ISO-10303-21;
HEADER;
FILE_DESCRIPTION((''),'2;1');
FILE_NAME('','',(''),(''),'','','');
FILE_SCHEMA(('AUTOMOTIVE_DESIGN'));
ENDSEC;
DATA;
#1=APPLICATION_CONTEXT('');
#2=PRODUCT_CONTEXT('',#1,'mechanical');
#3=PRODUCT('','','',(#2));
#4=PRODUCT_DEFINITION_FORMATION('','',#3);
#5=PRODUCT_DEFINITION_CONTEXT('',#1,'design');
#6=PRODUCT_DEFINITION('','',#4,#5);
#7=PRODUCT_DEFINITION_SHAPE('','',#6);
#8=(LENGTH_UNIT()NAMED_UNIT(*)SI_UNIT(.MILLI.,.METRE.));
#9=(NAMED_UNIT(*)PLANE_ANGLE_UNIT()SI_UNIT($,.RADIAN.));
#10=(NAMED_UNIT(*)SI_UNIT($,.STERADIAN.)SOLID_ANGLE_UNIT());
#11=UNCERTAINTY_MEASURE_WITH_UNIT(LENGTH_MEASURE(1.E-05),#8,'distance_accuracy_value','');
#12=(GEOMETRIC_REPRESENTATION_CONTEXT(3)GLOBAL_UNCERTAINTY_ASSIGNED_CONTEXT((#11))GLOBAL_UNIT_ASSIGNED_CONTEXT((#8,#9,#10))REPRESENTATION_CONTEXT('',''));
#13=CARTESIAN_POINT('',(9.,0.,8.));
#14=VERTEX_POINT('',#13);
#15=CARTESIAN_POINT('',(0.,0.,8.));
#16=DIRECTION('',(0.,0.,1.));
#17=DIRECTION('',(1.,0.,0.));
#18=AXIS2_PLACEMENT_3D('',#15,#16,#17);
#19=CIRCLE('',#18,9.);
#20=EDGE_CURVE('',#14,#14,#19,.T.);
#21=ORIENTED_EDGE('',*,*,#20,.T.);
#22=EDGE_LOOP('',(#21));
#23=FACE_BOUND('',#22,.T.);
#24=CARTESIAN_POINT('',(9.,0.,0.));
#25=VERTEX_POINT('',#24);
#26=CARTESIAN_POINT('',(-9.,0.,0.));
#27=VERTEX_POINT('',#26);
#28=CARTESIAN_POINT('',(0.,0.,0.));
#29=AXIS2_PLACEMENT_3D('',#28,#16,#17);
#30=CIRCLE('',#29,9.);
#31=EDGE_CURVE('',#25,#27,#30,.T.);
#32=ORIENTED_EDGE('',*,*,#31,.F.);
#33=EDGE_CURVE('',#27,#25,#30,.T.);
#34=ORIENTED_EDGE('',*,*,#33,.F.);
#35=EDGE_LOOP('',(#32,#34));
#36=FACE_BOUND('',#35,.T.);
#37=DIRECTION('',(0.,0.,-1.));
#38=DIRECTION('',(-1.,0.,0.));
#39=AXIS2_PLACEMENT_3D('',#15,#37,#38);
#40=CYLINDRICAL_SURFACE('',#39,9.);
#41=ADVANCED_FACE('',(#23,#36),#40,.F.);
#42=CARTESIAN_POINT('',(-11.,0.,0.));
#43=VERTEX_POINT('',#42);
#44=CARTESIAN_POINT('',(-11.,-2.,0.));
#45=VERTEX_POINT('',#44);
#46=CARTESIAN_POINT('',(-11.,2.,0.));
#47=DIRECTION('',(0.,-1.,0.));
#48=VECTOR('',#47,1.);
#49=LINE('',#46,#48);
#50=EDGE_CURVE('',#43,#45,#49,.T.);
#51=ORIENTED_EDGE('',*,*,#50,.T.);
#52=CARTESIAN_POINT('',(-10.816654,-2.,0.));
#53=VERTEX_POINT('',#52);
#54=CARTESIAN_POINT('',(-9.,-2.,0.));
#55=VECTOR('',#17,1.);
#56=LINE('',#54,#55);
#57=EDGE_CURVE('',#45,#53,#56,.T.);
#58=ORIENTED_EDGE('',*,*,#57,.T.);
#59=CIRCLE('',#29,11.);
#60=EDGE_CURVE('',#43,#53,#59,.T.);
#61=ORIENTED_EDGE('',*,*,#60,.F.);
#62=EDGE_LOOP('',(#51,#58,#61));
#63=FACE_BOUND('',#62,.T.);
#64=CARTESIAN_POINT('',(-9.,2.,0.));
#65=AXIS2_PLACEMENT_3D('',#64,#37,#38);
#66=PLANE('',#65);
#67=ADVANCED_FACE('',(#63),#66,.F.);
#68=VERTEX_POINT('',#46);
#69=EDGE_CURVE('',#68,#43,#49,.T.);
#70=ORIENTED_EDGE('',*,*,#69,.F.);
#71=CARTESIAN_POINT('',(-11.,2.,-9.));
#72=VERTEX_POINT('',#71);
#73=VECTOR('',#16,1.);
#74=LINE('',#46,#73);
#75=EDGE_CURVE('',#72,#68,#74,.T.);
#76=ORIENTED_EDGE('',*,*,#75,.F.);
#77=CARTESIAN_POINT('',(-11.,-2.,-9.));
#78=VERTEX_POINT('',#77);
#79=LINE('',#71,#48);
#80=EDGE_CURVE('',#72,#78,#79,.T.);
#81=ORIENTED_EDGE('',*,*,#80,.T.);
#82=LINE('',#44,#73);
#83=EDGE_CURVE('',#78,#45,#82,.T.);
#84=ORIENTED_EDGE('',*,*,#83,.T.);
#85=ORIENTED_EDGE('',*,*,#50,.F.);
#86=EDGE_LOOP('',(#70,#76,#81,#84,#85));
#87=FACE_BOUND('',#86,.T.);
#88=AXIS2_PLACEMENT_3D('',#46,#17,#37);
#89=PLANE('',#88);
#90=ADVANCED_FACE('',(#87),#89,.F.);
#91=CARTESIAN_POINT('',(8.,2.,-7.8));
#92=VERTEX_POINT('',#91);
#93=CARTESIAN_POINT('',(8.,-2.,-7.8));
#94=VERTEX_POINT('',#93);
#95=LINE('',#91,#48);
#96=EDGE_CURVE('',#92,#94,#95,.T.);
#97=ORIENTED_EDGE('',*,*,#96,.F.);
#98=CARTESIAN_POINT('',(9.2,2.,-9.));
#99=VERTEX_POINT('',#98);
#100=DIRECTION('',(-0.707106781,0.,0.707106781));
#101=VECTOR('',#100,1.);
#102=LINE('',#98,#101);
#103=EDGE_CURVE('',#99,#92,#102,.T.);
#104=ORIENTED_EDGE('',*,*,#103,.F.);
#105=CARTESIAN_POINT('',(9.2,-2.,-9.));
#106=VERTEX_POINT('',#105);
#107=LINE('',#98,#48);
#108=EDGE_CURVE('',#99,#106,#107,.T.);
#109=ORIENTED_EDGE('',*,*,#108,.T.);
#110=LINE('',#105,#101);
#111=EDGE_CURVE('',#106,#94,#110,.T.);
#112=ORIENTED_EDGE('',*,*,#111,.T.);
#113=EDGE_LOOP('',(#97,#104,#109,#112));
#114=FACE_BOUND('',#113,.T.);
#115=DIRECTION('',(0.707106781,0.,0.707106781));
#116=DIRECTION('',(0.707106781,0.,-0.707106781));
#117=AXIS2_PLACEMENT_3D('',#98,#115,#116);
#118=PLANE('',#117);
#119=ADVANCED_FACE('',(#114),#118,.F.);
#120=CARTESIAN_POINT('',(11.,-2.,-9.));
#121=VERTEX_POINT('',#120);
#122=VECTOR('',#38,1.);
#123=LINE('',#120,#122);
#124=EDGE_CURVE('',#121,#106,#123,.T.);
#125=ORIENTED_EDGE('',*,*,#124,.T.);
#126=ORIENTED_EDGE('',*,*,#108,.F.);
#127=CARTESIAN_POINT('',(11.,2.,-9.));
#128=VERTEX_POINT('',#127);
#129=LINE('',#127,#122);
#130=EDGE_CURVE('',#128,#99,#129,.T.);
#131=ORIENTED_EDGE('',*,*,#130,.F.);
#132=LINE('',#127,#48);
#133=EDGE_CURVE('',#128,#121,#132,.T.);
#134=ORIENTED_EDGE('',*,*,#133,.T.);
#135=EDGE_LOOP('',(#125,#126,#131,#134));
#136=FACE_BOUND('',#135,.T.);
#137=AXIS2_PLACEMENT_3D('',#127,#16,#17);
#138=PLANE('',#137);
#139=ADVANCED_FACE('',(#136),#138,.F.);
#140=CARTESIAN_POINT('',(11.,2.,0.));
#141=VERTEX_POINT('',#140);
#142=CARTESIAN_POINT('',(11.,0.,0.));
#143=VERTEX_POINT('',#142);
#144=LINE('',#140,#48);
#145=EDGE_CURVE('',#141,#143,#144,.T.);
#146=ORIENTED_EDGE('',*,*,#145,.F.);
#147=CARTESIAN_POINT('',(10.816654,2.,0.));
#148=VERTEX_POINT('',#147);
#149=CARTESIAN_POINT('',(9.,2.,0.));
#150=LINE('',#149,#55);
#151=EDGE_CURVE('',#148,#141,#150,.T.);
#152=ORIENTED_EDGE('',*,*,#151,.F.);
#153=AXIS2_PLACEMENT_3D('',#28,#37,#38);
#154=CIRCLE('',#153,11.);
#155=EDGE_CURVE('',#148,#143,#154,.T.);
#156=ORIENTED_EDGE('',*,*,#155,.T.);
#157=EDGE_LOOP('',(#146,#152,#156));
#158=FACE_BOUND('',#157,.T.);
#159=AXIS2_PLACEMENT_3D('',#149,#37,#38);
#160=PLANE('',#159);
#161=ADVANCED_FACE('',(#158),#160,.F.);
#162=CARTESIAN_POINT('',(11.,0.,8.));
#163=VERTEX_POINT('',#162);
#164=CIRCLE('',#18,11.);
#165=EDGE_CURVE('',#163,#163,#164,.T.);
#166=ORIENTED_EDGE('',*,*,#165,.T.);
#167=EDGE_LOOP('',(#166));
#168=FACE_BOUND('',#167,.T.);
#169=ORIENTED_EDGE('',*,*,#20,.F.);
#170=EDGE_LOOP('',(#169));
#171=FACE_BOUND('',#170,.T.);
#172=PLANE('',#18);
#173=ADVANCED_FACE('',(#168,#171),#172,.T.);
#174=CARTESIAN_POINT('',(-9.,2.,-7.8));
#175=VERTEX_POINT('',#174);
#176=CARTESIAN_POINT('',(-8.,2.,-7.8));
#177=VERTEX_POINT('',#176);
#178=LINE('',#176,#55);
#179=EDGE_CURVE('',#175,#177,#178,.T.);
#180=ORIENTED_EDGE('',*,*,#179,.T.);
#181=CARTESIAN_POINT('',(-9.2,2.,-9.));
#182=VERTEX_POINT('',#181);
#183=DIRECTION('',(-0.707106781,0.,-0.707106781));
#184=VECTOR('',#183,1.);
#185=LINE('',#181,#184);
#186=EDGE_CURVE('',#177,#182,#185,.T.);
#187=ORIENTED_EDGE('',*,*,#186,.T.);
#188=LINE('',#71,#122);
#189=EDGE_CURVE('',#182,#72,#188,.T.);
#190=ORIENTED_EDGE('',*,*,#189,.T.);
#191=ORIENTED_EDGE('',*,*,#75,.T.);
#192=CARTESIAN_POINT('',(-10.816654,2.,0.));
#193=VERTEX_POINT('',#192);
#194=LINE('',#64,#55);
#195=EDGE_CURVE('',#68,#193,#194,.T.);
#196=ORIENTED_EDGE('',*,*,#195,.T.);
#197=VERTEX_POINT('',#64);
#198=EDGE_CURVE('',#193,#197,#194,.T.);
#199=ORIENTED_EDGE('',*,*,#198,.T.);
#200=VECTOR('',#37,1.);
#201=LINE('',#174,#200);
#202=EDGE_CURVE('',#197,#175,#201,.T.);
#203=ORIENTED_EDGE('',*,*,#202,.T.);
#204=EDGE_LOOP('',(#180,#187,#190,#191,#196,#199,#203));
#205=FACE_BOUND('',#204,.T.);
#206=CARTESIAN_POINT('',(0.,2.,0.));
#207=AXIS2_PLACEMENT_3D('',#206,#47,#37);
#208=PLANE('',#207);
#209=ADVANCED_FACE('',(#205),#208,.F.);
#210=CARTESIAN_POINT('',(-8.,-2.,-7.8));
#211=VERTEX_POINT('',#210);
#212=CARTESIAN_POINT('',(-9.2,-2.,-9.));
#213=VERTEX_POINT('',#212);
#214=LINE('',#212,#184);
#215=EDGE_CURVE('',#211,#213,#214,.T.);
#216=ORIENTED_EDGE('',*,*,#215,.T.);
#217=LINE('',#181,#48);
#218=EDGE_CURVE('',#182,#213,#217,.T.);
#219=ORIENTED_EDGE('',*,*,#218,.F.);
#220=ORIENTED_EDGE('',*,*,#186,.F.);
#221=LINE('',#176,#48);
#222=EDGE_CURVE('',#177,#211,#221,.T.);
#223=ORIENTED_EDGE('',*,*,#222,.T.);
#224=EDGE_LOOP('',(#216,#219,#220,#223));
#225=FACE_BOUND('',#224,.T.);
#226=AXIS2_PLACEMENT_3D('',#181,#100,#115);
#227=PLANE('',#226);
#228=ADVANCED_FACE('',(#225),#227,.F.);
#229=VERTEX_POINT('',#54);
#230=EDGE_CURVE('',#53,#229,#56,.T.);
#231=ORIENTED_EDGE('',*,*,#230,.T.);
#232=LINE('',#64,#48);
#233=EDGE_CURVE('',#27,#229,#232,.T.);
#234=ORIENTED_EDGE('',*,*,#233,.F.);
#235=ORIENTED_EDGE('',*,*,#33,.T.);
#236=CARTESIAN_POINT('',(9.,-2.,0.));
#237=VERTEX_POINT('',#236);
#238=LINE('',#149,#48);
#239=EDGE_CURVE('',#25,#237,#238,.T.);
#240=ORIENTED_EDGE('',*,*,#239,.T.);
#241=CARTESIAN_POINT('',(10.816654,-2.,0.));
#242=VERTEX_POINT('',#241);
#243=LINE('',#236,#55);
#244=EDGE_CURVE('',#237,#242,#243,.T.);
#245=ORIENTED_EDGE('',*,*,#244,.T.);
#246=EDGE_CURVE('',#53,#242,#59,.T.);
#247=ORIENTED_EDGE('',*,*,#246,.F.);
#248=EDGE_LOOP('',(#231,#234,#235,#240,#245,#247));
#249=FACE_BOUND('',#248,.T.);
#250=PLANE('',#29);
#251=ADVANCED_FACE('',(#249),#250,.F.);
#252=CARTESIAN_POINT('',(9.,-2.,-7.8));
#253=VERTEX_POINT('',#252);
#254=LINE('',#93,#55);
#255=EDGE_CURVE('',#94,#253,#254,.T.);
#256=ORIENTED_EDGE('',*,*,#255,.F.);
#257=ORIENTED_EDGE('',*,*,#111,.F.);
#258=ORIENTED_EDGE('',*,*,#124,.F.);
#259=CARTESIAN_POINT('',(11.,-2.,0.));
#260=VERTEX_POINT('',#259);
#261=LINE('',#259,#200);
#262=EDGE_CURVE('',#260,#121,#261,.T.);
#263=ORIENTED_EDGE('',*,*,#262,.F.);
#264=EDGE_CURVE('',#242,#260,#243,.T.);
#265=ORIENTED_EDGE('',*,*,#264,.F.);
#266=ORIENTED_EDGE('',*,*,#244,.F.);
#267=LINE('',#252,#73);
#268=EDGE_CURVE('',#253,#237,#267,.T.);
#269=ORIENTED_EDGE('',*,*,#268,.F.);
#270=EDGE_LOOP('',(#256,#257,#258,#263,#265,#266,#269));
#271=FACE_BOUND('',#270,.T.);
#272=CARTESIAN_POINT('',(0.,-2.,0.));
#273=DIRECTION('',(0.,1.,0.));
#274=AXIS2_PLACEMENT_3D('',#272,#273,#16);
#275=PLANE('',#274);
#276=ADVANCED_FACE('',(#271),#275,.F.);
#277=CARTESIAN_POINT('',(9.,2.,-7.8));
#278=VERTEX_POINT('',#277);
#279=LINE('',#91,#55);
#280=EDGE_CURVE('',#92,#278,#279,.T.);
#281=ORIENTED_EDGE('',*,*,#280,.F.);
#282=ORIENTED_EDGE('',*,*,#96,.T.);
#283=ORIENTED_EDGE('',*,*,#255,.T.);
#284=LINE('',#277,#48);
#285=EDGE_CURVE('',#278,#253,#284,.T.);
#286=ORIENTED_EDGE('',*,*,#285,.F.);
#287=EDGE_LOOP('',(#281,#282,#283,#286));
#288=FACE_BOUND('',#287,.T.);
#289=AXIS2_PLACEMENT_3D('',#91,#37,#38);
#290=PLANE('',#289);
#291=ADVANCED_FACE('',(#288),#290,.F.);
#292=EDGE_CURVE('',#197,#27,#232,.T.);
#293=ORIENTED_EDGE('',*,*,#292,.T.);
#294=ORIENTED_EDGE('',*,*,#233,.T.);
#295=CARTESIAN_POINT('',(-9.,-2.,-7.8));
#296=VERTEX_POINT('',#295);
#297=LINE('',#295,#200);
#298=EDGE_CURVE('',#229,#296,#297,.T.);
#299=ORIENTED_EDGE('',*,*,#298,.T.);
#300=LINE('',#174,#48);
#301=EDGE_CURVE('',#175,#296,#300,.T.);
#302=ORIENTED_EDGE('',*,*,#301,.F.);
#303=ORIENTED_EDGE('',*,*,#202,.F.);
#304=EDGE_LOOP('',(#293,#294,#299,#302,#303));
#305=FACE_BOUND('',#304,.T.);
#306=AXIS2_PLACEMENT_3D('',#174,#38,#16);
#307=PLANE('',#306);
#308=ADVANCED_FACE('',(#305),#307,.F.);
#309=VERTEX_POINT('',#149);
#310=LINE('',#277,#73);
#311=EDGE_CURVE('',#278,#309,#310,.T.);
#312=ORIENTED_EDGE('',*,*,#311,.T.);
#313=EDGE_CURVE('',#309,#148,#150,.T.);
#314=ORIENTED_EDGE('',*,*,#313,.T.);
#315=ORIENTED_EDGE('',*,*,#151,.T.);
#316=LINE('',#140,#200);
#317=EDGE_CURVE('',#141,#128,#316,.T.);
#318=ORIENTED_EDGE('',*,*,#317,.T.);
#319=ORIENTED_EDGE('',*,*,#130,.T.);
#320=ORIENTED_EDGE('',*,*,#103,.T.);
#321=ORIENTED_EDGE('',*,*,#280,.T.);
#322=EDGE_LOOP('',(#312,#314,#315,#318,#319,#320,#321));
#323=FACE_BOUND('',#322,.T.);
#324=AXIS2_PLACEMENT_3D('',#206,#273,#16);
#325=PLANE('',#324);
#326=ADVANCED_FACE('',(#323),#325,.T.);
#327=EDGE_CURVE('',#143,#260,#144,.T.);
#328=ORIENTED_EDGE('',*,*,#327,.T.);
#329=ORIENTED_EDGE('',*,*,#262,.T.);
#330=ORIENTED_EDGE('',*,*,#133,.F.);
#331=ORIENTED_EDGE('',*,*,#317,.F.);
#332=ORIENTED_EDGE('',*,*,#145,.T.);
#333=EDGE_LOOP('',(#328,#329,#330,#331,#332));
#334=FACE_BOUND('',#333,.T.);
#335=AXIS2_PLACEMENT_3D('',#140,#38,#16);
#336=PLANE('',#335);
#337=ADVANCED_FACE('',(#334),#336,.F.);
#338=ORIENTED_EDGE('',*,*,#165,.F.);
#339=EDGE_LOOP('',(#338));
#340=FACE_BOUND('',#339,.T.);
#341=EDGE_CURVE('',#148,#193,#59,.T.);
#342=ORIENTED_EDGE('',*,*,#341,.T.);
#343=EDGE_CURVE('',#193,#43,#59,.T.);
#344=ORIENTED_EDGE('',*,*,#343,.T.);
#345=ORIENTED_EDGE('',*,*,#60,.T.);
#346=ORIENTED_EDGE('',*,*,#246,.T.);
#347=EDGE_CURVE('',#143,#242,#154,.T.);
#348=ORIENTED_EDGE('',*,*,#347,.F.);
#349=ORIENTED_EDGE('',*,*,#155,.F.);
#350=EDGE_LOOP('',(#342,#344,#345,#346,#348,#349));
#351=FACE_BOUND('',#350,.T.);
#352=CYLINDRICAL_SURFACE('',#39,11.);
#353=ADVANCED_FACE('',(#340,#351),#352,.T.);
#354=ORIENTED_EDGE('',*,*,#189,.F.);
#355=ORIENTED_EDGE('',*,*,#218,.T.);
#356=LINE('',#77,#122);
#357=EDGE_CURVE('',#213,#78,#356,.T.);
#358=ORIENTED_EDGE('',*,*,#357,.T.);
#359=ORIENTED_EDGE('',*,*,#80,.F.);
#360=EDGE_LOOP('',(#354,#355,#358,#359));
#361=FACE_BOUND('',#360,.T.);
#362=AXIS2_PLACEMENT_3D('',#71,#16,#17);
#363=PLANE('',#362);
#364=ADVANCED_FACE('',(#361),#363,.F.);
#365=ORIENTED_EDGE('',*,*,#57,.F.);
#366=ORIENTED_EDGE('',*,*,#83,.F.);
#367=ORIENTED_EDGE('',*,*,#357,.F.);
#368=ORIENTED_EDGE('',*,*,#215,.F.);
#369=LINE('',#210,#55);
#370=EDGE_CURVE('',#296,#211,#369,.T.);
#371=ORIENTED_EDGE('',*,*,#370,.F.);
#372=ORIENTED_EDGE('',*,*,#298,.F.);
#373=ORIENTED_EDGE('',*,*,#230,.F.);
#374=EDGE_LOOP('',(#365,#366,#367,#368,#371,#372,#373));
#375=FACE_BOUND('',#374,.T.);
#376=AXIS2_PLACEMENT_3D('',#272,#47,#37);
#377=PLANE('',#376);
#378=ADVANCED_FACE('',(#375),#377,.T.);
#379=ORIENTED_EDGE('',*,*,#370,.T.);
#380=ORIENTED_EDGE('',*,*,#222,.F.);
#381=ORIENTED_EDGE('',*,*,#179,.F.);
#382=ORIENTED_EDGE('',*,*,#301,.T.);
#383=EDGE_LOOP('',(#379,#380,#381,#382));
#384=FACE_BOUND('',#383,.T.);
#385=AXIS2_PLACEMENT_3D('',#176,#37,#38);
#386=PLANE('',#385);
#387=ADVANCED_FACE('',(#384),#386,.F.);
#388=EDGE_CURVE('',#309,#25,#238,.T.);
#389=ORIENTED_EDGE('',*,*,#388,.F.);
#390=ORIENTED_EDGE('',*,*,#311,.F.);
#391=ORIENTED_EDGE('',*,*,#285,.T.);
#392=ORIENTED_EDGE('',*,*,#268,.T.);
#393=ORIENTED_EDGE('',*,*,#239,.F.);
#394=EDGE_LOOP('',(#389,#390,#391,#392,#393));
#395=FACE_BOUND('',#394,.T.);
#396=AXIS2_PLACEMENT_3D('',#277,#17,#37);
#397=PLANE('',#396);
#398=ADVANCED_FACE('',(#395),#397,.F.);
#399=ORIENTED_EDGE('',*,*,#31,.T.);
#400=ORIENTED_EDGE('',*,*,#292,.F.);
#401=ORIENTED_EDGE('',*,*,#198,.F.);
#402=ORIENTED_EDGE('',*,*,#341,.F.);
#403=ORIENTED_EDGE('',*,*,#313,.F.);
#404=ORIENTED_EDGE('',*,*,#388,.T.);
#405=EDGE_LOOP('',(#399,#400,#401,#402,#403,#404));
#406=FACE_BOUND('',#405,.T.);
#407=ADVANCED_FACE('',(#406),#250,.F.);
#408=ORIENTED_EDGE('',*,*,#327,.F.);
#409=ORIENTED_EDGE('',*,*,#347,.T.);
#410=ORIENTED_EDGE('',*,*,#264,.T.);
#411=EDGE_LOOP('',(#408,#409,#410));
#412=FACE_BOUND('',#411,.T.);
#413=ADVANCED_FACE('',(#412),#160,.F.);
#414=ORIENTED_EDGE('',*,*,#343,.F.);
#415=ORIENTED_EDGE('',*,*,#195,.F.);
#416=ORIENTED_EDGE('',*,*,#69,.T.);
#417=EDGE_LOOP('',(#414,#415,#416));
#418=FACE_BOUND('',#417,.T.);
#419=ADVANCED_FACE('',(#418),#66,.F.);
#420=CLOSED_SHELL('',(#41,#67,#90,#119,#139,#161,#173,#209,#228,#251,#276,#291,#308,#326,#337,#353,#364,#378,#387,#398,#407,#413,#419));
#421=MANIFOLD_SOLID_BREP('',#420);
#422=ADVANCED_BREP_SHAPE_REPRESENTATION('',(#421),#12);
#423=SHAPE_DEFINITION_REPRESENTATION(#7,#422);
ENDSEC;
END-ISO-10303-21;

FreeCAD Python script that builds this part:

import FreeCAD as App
import Part
import Sketcher
from FreeCAD import Vector
Q = App.Units.Quantity

doc = App.newDocument("Part")
body = doc.addObject("PartDesign::Body", "Body")

# Sketch on XY plane
sketch1 = doc.addObject("Sketcher::SketchObject", "Sketch")
body.addObject(sketch1)
sketch1.AttachmentSupport = (doc.XY_Plane, [""])
sketch1.MapMode = "FlatFace"
sketch1.addGeometry([
    Part.Circle(Vector(0, 0, 0), Vector(0, 0, 1), 11),
    Part.Circle(Vector(0, 0, 0), Vector(0, 0, 1), 9),
], False)
sketch1.addConstraint([
    Sketcher.Constraint("Coincident", 0, 3, -1, 1),
    Sketcher.Constraint("Coincident", 1, 3, -1, 1),
    Sketcher.Constraint("Diameter", 0, Q("22 mm")),
    Sketcher.Constraint("Diameter", 1, Q("18 mm")),
])
pad1 = doc.addObject("PartDesign::Pad", "Pad")
body.addObject(pad1)
pad1.Profile = sketch1
pad1.Length = 8

# Sketch on XZ plane
sketch2 = doc.addObject("Sketcher::SketchObject", "Sketch001")
body.addObject(sketch2)
sketch2.AttachmentSupport = (doc.XZ_Plane, [""])
sketch2.MapMode = "FlatFace"
sketch2.addGeometry([
    Part.LineSegment(Vector(-11, -9, 0), Vector(-11, 0, 0)),  # 0
    Part.LineSegment(Vector(-11, 0, 0), Vector(-9, 0, 0)),  # 1
    Part.LineSegment(Vector(-9, 0, 0), Vector(-9, -7.8, 0)),  # 2
    Part.LineSegment(Vector(-9, -7.8, 0), Vector(-8, -7.8, 0)),  # 3
    Part.LineSegment(Vector(-8, -7.8, 0), Vector(-9.2, -9, 0)),  # 4
    Part.LineSegment(Vector(-9.2, -9, 0), Vector(-11, -9, 0)),  # 5
    Part.LineSegment(Vector(9, 0, 0), Vector(11, 0, 0)),  # 6
    Part.LineSegment(Vector(11, 0, 0), Vector(11, -9, 0)),  # 7
    Part.LineSegment(Vector(11, -9, 0), Vector(9.2, -9, 0)),  # 8
    Part.LineSegment(Vector(9.2, -9, 0), Vector(8, -7.8, 0)),  # 9
    Part.LineSegment(Vector(8, -7.8, 0), Vector(9, -7.8, 0)),  # 10
    Part.LineSegment(Vector(9, -7.8, 0), Vector(9, 0, 0)),  # 11
], False)
sketch2.addConstraint([
    Sketcher.Constraint("Coincident", 0, 2, 1, 1),
    Sketcher.Constraint("Coincident", 1, 2, 2, 1),
    Sketcher.Constraint("Coincident", 2, 2, 3, 1),
    Sketcher.Constraint("Coincident", 3, 2, 4, 1),
    Sketcher.Constraint("Coincident", 4, 2, 5, 1),
    Sketcher.Constraint("Coincident", 5, 2, 0, 1),
    Sketcher.Constraint("Coincident", 6, 2, 7, 1),
    Sketcher.Constraint("Coincident", 7, 2, 8, 1),
    Sketcher.Constraint("Coincident", 8, 2, 9, 1),
    Sketcher.Constraint("Coincident", 9, 2, 10, 1),
    Sketcher.Constraint("Coincident", 10, 2, 11, 1),
    Sketcher.Constraint("Coincident", 11, 2, 6, 1),
    Sketcher.Constraint("Vertical", 0),
    Sketcher.Constraint("Horizontal", 1),
    Sketcher.Constraint("Vertical", 2),
    Sketcher.Constraint("Horizontal", 3),
    Sketcher.Constraint("Horizontal", 5),
    Sketcher.Constraint("Horizontal", 6),
    Sketcher.Constraint("Vertical", 7),
    Sketcher.Constraint("Horizontal", 8),
    Sketcher.Constraint("Horizontal", 10),
    Sketcher.Constraint("Vertical", 11),
    Sketcher.Constraint("Symmetric", 0, 2, 6, 2, -1, 1),
    Sketcher.Constraint("Symmetric", 4, 2, 8, 2, -2),
    Sketcher.Constraint("Symmetric", 3, 2, 9, 2, -2),
    Sketcher.Constraint("Symmetric", 1, 2, 11, 2, -2),
    Sketcher.Constraint("Perpendicular", 4, 9),
    Sketcher.Constraint("DistanceX", 1, 1, 1, 2, Q("2 mm")),
    Sketcher.Constraint("DistanceX", 3, 1, 3, 2, Q("1 mm")),
    Sketcher.Constraint("DistanceY", 0, 1, 0, 2, Q("9 mm")),
    Sketcher.Constraint("DistanceX", 5, 2, 5, 1, Q("1.8 mm")),
    Sketcher.Constraint("DistanceX", 0, 2, -1, 1, Q("11 mm")),
])
pad2 = doc.addObject("PartDesign::Pad", "Pad001")
body.addObject(pad2)
pad2.Profile = sketch2
pad2.Length = 4
pad2.Midplane = True

doc.recompute()
